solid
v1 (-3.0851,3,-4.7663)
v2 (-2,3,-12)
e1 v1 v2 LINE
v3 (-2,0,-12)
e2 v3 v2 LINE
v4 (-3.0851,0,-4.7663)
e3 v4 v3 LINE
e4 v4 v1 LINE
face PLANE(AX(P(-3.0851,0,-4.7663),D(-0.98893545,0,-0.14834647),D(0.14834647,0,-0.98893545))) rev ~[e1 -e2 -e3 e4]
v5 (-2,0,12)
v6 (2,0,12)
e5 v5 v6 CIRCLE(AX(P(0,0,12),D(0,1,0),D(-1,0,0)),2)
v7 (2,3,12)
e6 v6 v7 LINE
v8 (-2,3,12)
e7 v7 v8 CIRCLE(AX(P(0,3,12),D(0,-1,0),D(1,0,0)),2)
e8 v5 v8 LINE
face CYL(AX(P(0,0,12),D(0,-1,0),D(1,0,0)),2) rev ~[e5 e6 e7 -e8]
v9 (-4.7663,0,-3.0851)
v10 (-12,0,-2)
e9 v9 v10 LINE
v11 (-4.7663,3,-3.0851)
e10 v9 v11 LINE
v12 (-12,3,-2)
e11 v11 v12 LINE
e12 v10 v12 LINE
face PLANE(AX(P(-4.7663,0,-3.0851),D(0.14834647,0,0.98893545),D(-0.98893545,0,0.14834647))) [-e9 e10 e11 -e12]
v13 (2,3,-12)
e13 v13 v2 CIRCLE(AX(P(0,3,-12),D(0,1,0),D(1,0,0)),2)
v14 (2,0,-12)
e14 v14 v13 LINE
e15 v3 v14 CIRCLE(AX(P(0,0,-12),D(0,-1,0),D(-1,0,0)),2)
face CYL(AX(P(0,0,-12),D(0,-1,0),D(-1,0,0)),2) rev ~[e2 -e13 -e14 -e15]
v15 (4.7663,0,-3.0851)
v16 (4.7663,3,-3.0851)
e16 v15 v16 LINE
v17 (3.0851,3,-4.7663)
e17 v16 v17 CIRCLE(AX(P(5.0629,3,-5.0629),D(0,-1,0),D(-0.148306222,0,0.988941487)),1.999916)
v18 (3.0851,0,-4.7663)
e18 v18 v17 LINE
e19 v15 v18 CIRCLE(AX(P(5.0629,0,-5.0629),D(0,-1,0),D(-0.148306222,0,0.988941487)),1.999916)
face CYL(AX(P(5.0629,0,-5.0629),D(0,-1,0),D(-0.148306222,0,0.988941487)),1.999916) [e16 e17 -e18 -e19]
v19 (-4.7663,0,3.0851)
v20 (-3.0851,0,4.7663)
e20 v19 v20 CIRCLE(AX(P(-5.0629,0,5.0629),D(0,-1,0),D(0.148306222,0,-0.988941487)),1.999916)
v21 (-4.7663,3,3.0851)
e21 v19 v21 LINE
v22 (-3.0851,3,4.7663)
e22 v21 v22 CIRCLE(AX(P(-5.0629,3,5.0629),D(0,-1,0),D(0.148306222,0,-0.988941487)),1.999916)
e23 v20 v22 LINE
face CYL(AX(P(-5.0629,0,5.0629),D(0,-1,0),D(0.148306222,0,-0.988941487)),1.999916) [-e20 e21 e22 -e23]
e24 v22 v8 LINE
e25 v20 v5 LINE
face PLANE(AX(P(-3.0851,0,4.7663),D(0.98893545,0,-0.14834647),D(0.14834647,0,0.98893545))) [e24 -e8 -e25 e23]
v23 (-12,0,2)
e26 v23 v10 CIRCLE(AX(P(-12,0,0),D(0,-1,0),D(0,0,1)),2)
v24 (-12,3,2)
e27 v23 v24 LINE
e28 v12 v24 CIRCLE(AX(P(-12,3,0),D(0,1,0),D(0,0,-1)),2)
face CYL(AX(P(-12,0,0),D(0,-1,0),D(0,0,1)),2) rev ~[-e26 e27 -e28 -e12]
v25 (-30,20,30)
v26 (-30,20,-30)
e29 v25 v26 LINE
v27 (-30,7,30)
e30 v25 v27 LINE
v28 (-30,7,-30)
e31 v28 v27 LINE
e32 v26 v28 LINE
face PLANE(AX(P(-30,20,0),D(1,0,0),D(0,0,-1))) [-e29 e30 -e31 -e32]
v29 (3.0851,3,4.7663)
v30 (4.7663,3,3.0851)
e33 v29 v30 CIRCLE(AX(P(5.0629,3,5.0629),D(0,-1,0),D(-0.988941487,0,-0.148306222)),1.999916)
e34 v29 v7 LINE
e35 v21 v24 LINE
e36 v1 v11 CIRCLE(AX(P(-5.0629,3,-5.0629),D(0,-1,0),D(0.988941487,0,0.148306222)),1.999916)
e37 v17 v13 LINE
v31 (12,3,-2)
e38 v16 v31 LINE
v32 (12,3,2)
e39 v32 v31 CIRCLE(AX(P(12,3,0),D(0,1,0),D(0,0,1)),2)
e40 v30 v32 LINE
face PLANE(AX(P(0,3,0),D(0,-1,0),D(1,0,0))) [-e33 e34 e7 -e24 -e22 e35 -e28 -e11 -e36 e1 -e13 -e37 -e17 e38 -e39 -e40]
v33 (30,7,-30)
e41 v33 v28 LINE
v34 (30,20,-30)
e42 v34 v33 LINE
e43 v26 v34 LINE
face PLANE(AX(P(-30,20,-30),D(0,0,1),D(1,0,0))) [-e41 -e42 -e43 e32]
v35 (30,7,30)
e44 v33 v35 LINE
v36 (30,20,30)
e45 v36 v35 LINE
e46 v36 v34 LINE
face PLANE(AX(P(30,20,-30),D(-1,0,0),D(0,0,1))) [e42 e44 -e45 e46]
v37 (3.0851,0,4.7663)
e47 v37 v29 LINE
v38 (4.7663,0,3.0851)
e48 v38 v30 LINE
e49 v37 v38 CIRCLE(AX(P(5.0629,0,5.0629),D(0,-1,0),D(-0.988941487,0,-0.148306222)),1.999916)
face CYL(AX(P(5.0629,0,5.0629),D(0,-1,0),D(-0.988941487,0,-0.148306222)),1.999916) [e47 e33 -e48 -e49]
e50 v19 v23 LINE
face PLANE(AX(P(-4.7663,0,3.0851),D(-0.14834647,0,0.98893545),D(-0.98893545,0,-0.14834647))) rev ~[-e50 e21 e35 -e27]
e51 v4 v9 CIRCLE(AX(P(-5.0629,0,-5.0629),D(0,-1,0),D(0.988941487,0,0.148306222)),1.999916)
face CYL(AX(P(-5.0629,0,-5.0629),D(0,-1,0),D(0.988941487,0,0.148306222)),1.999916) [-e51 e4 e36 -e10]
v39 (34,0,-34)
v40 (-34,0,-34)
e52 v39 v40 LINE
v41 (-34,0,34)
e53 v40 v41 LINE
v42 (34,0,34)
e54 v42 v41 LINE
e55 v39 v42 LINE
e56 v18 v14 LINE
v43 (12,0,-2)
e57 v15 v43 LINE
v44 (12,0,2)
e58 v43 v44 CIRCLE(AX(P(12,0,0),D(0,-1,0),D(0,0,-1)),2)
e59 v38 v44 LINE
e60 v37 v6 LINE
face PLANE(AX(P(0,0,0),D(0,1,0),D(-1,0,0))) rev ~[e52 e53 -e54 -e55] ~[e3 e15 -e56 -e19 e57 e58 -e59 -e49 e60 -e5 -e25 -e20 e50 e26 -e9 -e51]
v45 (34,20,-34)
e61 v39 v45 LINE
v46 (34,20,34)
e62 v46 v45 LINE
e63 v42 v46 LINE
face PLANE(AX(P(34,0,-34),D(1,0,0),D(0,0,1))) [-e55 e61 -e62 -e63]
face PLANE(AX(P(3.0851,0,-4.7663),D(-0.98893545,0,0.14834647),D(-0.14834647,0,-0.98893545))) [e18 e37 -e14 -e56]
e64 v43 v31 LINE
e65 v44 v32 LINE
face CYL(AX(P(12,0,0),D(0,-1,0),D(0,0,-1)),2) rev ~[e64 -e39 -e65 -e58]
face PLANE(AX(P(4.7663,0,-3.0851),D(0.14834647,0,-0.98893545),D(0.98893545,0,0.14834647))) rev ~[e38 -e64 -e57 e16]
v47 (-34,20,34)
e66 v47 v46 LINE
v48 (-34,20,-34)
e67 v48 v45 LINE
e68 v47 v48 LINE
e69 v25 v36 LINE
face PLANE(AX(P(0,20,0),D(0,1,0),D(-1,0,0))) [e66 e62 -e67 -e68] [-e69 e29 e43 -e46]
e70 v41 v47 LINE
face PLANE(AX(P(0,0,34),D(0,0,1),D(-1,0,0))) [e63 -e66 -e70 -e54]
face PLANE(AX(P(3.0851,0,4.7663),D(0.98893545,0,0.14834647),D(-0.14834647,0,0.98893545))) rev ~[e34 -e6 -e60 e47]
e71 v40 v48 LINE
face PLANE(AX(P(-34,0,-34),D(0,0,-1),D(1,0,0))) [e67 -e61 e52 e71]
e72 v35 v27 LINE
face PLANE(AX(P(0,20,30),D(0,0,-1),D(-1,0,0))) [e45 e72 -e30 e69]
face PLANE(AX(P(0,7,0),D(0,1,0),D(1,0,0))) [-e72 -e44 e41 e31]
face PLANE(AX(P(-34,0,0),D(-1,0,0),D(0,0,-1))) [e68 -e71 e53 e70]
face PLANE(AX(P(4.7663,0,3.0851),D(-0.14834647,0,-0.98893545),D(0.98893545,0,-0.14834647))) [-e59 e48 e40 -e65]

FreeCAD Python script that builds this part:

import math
import FreeCAD as App
import Part
import Sketcher
from FreeCAD import Vector
Q = App.Units.Quantity

doc = App.newDocument("Part")
body = doc.addObject("PartDesign::Body", "Body")

# Sketch on XZ plane
sketch1 = body.newObject("Sketcher::SketchObject", "Sketch")
sketch1.AttachmentSupport = (doc.getObject("XZ_Plane"), [""])
sketch1.MapMode = "FlatFace"
sketch1.addGeometry([
    Part.LineSegment(Vector(-34, -34, 0), Vector(-34, 34, 0)),
    Part.LineSegment(Vector(-34, 34, 0), Vector(34, 34, 0)),
    Part.LineSegment(Vector(34, 34, 0), Vector(34, -34, 0)),
    Part.LineSegment(Vector(34, -34, 0), Vector(-34, -34, 0)),
], False)
sketch1.addConstraint([
    Sketcher.Constraint("Coincident", 0, 2, 1, 1),
    Sketcher.Constraint("Coincident", 1, 2, 2, 1),
    Sketcher.Constraint("Coincident", 2, 2, 3, 1),
    Sketcher.Constraint("Coincident", 3, 2, 0, 1),
    Sketcher.Constraint("Vertical", 0),
    Sketcher.Constraint("Horizontal", 1),
    Sketcher.Constraint("Vertical", 2),
    Sketcher.Constraint("Horizontal", 3),
    Sketcher.Constraint("Symmetric", 0, 2, 2, 2, -1, 1),
    Sketcher.Constraint("Equal", 3, 0),
    Sketcher.Constraint("DistanceX", 1, 1, 1, 2, Q("68 mm")),
])
pad1 = body.newObject("PartDesign::Pad", "Pad")
pad1.Profile = sketch1
pad1.Length = 20
pad1.Reversed = True

# Sketch on XZ plane
sketch2 = body.newObject("Sketcher::SketchObject", "Sketch001")
sketch2.AttachmentSupport = (doc.getObject("XZ_Plane"), [""])
sketch2.MapMode = "FlatFace"
sketch2.AttachmentOffset = App.Placement(Vector(0, 0, -20), App.Rotation())
sketch2.addGeometry([
    Part.LineSegment(Vector(-30, -30, 0), Vector(-30, 30, 0)),
    Part.LineSegment(Vector(-30, 30, 0), Vector(30, 30, 0)),
    Part.LineSegment(Vector(30, 30, 0), Vector(30, -30, 0)),
    Part.LineSegment(Vector(30, -30, 0), Vector(-30, -30, 0)),
], False)
sketch2.addConstraint([
    Sketcher.Constraint("Coincident", 0, 2, 1, 1),
    Sketcher.Constraint("Coincident", 1, 2, 2, 1),
    Sketcher.Constraint("Coincident", 2, 2, 3, 1),
    Sketcher.Constraint("Coincident", 3, 2, 0, 1),
    Sketcher.Constraint("Vertical", 0),
    Sketcher.Constraint("Horizontal", 1),
    Sketcher.Constraint("Vertical", 2),
    Sketcher.Constraint("Horizontal", 3),
    Sketcher.Constraint("Symmetric", 0, 2, 2, 2, -1, 1),
    Sketcher.Constraint("Equal", 3, 0),
    Sketcher.Constraint("DistanceX", 1, 1, 1, 2, Q("60 mm")),
])
pocket1 = body.newObject("PartDesign::Pocket", "Pocket")
pocket1.Profile = sketch2
pocket1.Length = 13
pocket1.Reversed = True

# Sketch on XZ plane
sketch3 = body.newObject("Sketcher::SketchObject", "Sketch002")
sketch3.AttachmentSupport = (doc.getObject("XZ_Plane"), [""])
sketch3.MapMode = "FlatFace"
sketch3.addGeometry([
    Part.LineSegment(Vector(-2, 12, 0), Vector(-3.1, 4.8, 0)),  # 0
    Part.ArcOfCircle(Part.Circle(Vector(-5.1, 5.1, 0), Vector(0, 0, 1), 2), math.radians(-81), math.radians(-9)),  # 1
    Part.LineSegment(Vector(-4.8, 3.1, 0), Vector(-12, 2, 0)),  # 2
    Part.ArcOfCircle(Part.Circle(Vector(-12, 0, 0), Vector(0, 0, 1), 2), math.radians(90), math.radians(270)),  # 3
    Part.LineSegment(Vector(-12, -2, 0), Vector(-4.8, -3.1, 0)),  # 4
    Part.ArcOfCircle(Part.Circle(Vector(-5.1, -5.1, 0), Vector(0, 0, 1), 2), math.radians(9), math.radians(81)),  # 5
    Part.LineSegment(Vector(-3.1, -4.8, 0), Vector(-2, -12, 0)),  # 6
    Part.ArcOfCircle(Part.Circle(Vector(0, -12, 0), Vector(0, 0, 1), 2), math.radians(180), math.radians(360)),  # 7
    Part.LineSegment(Vector(2, -12, 0), Vector(3.1, -4.8, 0)),  # 8
    Part.ArcOfCircle(Part.Circle(Vector(5.1, -5.1, 0), Vector(0, 0, 1), 2), math.radians(99), math.radians(171)),  # 9
    Part.LineSegment(Vector(4.8, -3.1, 0), Vector(12, -2, 0)),  # 10
    Part.ArcOfCircle(Part.Circle(Vector(12, 0, 0), Vector(0, 0, 1), 2), math.radians(-90), math.radians(90)),  # 11
    Part.LineSegment(Vector(12, 2, 0), Vector(4.8, 3.1, 0)),  # 12
    Part.ArcOfCircle(Part.Circle(Vector(5.1, 5.1, 0), Vector(0, 0, 1), 2), math.radians(-171), math.radians(-99)),  # 13
    Part.LineSegment(Vector(3.1, 4.8, 0), Vector(2, 12, 0)),  # 14
    Part.ArcOfCircle(Part.Circle(Vector(0, 12, 0), Vector(0, 0, 1), 2), math.radians(0), math.radians(180)),  # 15
], False)
sketch3.addConstraint([
    Sketcher.Constraint("Tangent", 0, 2, 1, 2),
    Sketcher.Constraint("Tangent", 1, 1, 2, 1),
    Sketcher.Constraint("Coincident", 2, 2, 3, 1),
    Sketcher.Constraint("Coincident", 3, 2, 4, 1),
    Sketcher.Constraint("Tangent", 4, 2, 5, 2),
    Sketcher.Constraint("Tangent", 5, 1, 6, 1),
    Sketcher.Constraint("Coincident", 6, 2, 7, 1),
    Sketcher.Constraint("Coincident", 7, 2, 8, 1),
    Sketcher.Constraint("Tangent", 8, 2, 9, 2),
    Sketcher.Constraint("Tangent", 9, 1, 10, 1),
    Sketcher.Constraint("Coincident", 10, 2, 11, 1),
    Sketcher.Constraint("Coincident", 11, 2, 12, 1),
    Sketcher.Constraint("Tangent", 12, 2, 13, 2),
    Sketcher.Constraint("Tangent", 13, 1, 14, 1),
    Sketcher.Constraint("Coincident", 14, 2, 15, 1),
    Sketcher.Constraint("Coincident", 15, 2, 0, 1),
    Sketcher.Constraint("Equal", 1, 3),
    Sketcher.Constraint("Equal", 3, 5),
    Sketcher.Constraint("Equal", 5, 7),
    Sketcher.Constraint("Equal", 7, 9),
    Sketcher.Constraint("Equal", 9, 11),
    Sketcher.Constraint("Equal", 11, 13),
    Sketcher.Constraint("Equal", 13, 15),
    Sketcher.Constraint("Symmetric", 1, 3, 9, 3, -1, 1),
    Sketcher.Constraint("Symmetric", 3, 3, 11, 3, -1, 1),
    Sketcher.Constraint("Symmetric", 5, 3, 13, 3, -1, 1),
    Sketcher.Constraint("Symmetric", 7, 3, 15, 3, -1, 1),
    Sketcher.Constraint("Symmetric", 5, 3, 9, 3, -2),
    Sketcher.Constraint("Symmetric", 6, 2, 7, 2, -2),
    Sketcher.Constraint("Symmetric", 3, 2, 10, 2, -2),
    Sketcher.Constraint("Perpendicular", 0, 4),
    Sketcher.Constraint("Perpendicular", 2, 6),
    Sketcher.Constraint("Perpendicular", 4, 8),
    Sketcher.Constraint("Perpendicular", 8, 12),
    Sketcher.Constraint("Perpendicular", 10, 14),
    Sketcher.Constraint("Horizontal", 7, 3, 6, 2),
    Sketcher.Constraint("Vertical", 3, 3, 2, 2),
    Sketcher.Constraint("Equal", 0, 2),
    Sketcher.Constraint("Radius", 1, Q("2 mm")),
    Sketcher.Constraint("DistanceX", 3, 3, 11, 3, Q("24 mm")),
    Sketcher.Constraint("Angle", 0, Q("-98.531 deg")),
])
pocket2 = body.newObject("PartDesign::Pocket", "Pocket001")
pocket2.Profile = sketch3
pocket2.Length = 3

doc.recompute()
